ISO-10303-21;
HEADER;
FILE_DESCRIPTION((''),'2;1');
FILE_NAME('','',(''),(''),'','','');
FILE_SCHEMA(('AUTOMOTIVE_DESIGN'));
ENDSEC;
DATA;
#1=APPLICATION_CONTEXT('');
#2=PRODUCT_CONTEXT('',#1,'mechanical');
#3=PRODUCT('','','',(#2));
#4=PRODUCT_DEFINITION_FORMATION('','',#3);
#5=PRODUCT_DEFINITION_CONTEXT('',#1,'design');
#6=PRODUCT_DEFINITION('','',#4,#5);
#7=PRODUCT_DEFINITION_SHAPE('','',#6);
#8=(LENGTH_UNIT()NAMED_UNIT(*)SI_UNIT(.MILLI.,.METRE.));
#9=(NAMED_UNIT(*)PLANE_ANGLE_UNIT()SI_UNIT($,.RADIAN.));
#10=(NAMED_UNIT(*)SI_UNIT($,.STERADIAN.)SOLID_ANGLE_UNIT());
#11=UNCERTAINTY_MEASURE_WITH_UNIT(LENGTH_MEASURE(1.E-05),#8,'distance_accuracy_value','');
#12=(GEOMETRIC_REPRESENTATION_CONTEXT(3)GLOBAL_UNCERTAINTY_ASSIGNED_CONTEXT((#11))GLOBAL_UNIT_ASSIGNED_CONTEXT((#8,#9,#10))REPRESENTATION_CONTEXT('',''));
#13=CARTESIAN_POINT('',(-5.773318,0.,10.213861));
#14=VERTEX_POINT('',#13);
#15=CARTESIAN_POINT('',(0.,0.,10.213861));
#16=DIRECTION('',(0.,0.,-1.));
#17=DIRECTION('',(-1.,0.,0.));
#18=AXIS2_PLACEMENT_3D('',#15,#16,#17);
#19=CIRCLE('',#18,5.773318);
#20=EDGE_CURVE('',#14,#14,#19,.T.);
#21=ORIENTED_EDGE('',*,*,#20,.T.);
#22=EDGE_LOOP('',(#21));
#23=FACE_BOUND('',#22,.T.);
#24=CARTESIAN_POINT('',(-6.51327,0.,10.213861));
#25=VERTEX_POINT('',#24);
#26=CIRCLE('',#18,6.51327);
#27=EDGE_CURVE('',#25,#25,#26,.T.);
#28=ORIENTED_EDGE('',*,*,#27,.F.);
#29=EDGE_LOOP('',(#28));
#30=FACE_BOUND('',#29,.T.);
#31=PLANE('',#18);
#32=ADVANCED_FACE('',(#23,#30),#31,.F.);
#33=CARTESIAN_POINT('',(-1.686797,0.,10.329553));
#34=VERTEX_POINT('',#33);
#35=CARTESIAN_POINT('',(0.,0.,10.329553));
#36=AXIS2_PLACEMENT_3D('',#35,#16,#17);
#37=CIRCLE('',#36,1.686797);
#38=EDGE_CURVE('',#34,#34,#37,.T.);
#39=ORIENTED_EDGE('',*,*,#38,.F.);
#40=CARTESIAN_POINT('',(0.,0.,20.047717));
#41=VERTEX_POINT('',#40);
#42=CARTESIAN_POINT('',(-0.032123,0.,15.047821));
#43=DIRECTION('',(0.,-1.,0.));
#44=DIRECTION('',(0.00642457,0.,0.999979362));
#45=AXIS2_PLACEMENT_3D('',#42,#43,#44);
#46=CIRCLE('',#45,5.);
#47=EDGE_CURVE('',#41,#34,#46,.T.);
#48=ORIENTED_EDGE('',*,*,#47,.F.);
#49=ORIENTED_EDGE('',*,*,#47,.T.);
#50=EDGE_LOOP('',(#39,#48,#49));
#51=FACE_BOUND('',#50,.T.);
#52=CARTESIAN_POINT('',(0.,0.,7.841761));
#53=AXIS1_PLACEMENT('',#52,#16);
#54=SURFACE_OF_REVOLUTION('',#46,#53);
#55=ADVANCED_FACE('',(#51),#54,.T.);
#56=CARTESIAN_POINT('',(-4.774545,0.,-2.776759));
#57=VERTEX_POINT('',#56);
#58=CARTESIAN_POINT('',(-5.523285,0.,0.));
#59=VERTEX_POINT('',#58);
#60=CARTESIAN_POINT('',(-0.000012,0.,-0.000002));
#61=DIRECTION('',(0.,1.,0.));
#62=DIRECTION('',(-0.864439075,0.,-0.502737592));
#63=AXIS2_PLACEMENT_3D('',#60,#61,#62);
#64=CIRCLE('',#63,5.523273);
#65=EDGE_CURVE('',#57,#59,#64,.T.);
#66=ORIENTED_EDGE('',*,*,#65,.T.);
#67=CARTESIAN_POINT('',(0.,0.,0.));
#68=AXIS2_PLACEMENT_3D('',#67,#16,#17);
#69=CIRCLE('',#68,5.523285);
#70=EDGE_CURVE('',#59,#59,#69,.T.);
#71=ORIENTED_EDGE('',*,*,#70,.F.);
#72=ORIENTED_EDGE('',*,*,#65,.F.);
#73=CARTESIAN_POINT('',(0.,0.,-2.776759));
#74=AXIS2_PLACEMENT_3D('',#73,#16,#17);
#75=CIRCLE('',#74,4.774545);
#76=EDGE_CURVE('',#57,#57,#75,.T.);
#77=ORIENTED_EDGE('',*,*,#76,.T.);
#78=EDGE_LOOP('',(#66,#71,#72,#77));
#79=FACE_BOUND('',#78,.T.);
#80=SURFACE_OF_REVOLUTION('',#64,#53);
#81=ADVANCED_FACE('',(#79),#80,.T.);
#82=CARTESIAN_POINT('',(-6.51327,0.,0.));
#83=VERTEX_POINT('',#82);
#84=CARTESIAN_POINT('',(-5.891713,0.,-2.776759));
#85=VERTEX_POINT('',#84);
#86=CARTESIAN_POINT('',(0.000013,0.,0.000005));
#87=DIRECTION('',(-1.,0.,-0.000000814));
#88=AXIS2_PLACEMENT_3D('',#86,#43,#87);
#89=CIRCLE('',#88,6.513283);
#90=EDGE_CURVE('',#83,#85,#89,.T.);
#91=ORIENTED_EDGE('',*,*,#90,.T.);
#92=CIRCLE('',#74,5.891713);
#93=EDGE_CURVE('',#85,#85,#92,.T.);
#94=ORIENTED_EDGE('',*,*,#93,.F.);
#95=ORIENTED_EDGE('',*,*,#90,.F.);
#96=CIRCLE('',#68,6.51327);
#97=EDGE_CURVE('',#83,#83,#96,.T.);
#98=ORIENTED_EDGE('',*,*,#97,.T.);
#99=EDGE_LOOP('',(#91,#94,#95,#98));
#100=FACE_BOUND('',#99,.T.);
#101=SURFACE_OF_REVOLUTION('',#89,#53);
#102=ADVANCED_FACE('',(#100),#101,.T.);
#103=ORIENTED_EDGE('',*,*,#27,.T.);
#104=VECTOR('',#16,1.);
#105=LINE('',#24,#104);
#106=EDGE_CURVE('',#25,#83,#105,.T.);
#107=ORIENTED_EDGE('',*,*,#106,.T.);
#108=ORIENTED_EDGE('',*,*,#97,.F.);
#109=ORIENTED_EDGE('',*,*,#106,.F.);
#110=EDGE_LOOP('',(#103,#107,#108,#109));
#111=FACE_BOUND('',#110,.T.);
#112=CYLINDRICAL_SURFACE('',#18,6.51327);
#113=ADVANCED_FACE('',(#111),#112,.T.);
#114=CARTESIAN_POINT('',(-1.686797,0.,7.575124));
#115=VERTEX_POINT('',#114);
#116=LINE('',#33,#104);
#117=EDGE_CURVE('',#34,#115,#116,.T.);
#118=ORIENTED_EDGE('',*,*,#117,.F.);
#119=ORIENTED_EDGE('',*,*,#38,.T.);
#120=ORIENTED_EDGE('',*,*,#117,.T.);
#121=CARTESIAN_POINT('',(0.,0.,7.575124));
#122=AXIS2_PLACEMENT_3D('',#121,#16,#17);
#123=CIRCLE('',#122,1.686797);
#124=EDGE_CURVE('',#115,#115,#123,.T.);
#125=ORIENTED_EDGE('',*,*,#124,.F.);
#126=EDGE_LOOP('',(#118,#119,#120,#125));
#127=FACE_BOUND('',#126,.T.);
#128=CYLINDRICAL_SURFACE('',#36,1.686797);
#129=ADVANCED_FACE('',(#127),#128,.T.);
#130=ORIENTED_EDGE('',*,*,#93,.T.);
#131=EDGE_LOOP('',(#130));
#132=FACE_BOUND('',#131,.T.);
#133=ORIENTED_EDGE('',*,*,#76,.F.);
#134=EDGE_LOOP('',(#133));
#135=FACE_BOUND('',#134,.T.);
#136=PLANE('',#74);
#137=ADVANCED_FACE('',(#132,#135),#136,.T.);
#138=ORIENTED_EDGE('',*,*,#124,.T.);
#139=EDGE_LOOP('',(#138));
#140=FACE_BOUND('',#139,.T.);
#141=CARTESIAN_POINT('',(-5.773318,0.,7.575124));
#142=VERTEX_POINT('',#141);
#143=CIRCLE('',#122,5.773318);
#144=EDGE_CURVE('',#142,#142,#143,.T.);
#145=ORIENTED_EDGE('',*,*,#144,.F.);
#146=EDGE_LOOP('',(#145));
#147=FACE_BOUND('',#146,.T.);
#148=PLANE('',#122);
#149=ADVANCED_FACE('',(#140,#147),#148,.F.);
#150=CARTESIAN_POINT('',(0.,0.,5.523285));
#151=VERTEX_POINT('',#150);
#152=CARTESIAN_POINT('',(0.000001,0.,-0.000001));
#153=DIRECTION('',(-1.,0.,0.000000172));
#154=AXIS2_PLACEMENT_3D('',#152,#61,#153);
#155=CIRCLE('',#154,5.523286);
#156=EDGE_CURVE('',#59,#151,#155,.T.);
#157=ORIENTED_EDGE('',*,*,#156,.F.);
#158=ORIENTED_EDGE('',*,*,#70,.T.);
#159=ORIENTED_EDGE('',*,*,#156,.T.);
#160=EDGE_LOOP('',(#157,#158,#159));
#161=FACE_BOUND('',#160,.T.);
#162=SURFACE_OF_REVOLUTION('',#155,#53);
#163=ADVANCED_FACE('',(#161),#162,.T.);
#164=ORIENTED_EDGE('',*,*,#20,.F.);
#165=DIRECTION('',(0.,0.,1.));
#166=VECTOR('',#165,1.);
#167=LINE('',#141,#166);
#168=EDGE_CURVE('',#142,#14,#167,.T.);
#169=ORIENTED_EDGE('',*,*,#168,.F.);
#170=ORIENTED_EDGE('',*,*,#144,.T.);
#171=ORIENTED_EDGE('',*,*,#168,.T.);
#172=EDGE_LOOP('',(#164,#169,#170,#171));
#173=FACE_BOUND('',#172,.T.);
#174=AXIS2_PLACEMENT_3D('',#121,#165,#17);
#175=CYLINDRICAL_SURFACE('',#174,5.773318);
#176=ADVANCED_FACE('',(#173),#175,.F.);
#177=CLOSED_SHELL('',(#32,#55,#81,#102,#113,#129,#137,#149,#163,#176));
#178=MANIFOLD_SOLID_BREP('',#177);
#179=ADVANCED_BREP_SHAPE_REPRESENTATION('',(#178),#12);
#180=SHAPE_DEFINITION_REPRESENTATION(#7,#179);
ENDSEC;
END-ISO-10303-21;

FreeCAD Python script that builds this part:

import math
import FreeCAD as App
import Part
import Sketcher

V = App.Vector
Q = App.Units.Quantity

doc = App.newDocument("Part")
params = doc.addObject("Spreadsheet::Sheet", "Params")
for row, (alias, value) in enumerate([
    ("sketch1_radius", "5 mm"),
    ("revolution_angle", "360 deg"),
], start=1):
    params.set(f"A{row}", alias)
    params.set(f"B{row}", "=" + value)
    params.setAlias(f"B{row}", alias)

body = doc.addObject("PartDesign::Body", "Body")

sketch1 = body.newObject("Sketcher::SketchObject", "Sketch")
sketch1.AttachmentSupport = (doc.getObject("XZ_Plane"), [""])
sketch1.MapMode = "FlatFace"
sketch1.addGeometry([
    Part.ArcOfCircle(Part.Circle(V(-0.032123, 15.047821, 0), V(0, 0, 1), 5), math.radians(89.631897), math.radians(250.674473)),
    Part.LineSegment(V(-1.686797, 10.329553, 0), V(-1.686797, 7.575124, 0)),
    Part.LineSegment(V(-1.686797, 7.575124, 0), V(-5.773318, 7.575124, 0)),
    Part.LineSegment(V(-5.773318, 7.575124, 0), V(-5.773318, 10.213861, 0)),
    Part.LineSegment(V(-5.773318, 10.213861, 0), V(-6.51327, 10.213861, 0)),
    Part.LineSegment(V(-6.51327, 10.213861, 0), V(-6.51327, 0, 0)),
    Part.ArcOfCircle(Part.Circle(V(0.000013, 0.000005, 0), V(0, 0, 1), 6.513283), math.radians(-179.999953), math.radians(-154.765547)),
    Part.LineSegment(V(-5.891713, -2.776759, 0), V(-4.774545, -2.776759, 0)),
    Part.ArcOfCircle(Part.Circle(V(-0.000012, -0.000002, 0), V(0, 0, 1), 5.523273), math.radians(179.999979), math.radians(210.181284)),
    Part.ArcOfCircle(Part.Circle(V(0.000001, -0.000001, 0), V(0, 0, 1), 5.523286), math.radians(90.00001), math.radians(179.99999)),
    Part.LineSegment(V(0, 5.523285, 0), V(0, 20.047717, 0)),
], False)
sketch1.addConstraint([
    Sketcher.Constraint("Coincident", 0, 2, 1, 1),
    Sketcher.Constraint("Coincident", 1, 2, 2, 1),
    Sketcher.Constraint("Coincident", 2, 2, 3, 1),
    Sketcher.Constraint("Coincident", 3, 2, 4, 1),
    Sketcher.Constraint("Coincident", 4, 2, 5, 1),
    Sketcher.Constraint("Coincident", 5, 2, 6, 1),
    Sketcher.Constraint("Coincident", 6, 2, 7, 1),
    Sketcher.Constraint("Coincident", 7, 2, 8, 2),
    Sketcher.Constraint("Coincident", 8, 1, 9, 2),
    Sketcher.Constraint("Coincident", 9, 1, 10, 1),
    Sketcher.Constraint("Coincident", 10, 2, 0, 1),
    Sketcher.Constraint("Vertical", 1),
    Sketcher.Constraint("Horizontal", 2),
    Sketcher.Constraint("Vertical", 3),
    Sketcher.Constraint("Horizontal", 4),
    Sketcher.Constraint("Vertical", 5),
    Sketcher.Constraint("Horizontal", 7),
    Sketcher.Constraint("Vertical", 10),
    Sketcher.Constraint("Coincident", 9, 3, -1, 1),
    Sketcher.Constraint("PointOnObject", 5, 2, -1),
    Sketcher.Constraint("PointOnObject", 8, 1, -1),
    Sketcher.Constraint("PointOnObject", 9, 1, -2),
    Sketcher.Constraint("Radius", 0, Q("5 mm")),
    Sketcher.Constraint("Radius", 6, Q("6.513283 mm")),
    Sketcher.Constraint("Radius", 8, Q("5.523273 mm")),
    Sketcher.Constraint("Radius", 9, Q("5.523286 mm")),
    Sketcher.Constraint("DistanceX", 2, 2, 2, 1, Q("4.086521 mm")),
    Sketcher.Constraint("DistanceX", 7, 1, 7, 2, Q("1.117168 mm")),
    Sketcher.Constraint("DistanceY", 1, 2, 1, 1, Q("2.754429 mm")),
    Sketcher.Constraint("DistanceY", 5, 2, 5, 1, Q("10.213861 mm")),
    Sketcher.Constraint("DistanceY", 10, 1, 10, 2, Q("14.524432 mm")),
    Sketcher.Constraint("DistanceX", 6, 2, 8, 3, Q("5.891701 mm")),
    Sketcher.Constraint("DistanceX", 4, 2, 4, 1, Q("0.739952 mm")),
    Sketcher.Constraint("DistanceY", 3, 1, 3, 2, Q("2.638737 mm")),
    Sketcher.Constraint("DistanceX", 4, 2, -1, 1, Q("6.51327 mm")),
    Sketcher.Constraint("DistanceY", 6, 2, -1, 1, Q("2.776759 mm")),
])
sketch1.setExpression("Constraints[22]", "Params.sketch1_radius")
revolution = body.newObject("PartDesign::Revolution", "Revolution")
revolution.Profile = sketch1
revolution.ReferenceAxis = (sketch1, ["V_Axis"])
revolution.setExpression("Angle", "Params.revolution_angle")

doc.recompute()
